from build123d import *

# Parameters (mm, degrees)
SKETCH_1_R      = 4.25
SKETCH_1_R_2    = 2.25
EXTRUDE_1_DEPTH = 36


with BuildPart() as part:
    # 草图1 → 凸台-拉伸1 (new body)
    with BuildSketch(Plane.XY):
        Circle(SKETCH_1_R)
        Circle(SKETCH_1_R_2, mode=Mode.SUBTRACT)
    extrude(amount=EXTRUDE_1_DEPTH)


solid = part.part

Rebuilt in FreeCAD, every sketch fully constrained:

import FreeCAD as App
import Part
import Sketcher
Q = App.Units.Quantity

doc = App.newDocument("Part")
body = doc.addObject("PartDesign::Body", "Body")

sketch1 = doc.addObject("Sketcher::SketchObject", "Sketch")
body.addObject(sketch1)
sketch1.AttachmentSupport = (doc.XY_Plane, [""])
sketch1.MapMode = "FlatFace"
sketch1.addGeometry(Part.Circle(App.Vector(0, 0, 0), App.Vector(0, 0, 1), 4.2), False)
sketch1.addGeometry(Part.Circle(App.Vector(0, 0, 0), App.Vector(0, 0, 1), 2.2), False)
sketch1.addConstraint(Sketcher.Constraint("Coincident", 0, 3, -1, 1))
sketch1.addConstraint(Sketcher.Constraint("Coincident", 1, 3, -1, 1))
sketch1.addConstraint(Sketcher.Constraint("Diameter", 0, Q("8.5 mm")))
sketch1.addConstraint(Sketcher.Constraint("Diameter", 1, Q("4.5 mm")))
pad1 = doc.addObject("PartDesign::Pad", "Pad")
body.addObject(pad1)
pad1.Profile = sketch1
pad1.Length = 36

doc.recompute()
